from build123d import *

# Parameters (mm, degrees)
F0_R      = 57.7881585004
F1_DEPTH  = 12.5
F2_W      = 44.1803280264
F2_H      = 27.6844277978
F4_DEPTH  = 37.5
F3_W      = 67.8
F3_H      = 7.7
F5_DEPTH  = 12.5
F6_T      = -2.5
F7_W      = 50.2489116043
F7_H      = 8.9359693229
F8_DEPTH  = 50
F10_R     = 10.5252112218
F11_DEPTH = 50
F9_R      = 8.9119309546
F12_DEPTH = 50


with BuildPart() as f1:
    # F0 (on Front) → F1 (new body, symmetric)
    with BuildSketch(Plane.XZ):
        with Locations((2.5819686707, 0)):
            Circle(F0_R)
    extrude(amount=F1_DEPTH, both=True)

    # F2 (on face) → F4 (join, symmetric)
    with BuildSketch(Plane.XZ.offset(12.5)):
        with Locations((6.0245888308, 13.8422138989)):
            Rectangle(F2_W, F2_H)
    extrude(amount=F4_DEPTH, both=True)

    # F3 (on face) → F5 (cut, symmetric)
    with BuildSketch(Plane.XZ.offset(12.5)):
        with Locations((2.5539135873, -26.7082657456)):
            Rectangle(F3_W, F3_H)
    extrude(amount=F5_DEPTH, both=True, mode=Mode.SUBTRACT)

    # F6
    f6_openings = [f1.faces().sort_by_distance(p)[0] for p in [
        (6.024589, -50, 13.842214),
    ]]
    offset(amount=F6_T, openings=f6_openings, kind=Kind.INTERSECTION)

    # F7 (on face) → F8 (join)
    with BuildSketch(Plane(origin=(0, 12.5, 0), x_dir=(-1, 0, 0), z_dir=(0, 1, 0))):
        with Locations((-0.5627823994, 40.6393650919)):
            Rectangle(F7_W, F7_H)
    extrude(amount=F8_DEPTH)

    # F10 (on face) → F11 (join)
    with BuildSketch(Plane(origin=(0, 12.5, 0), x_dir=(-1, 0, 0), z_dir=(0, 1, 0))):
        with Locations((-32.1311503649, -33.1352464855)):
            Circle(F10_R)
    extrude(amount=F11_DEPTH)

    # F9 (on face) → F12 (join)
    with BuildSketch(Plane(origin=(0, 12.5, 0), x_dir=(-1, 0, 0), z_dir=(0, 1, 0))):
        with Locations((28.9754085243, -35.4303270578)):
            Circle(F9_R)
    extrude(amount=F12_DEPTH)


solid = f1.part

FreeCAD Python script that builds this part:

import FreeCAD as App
import Part
import Sketcher
from FreeCAD import Vector
Q = App.Units.Quantity


def faces_at(feature, points):
    """Names of the faces that lie closest to the given points."""
    faces = feature.Shape.Faces
    near = lambda p: min(range(len(faces)), key=lambda i: faces[i].distToShape(Part.Vertex(*p))[0])
    return sorted({f"Face{near(p) + 1}" for p in points})


def add_polygon(sketch, points):
    """Adds a closed chain of lines whose ends are joined by coincident constraints."""
    first, n = sketch.GeometryCount, len(points)
    for a, b in zip(points, points[1:] + points[:1]):
        sketch.addGeometry(Part.LineSegment(App.Vector(*a, 0), App.Vector(*b, 0)), False)
    for i in range(n):
        sketch.addConstraint(Sketcher.Constraint("Coincident", first + i, 2, first + (i + 1) % n, 1))

doc = App.newDocument("Part")
params = doc.addObject("Spreadsheet::Sheet", "Params")
for row, (alias, value) in enumerate([
    ("pad1_length", "25 mm"),
    ("pad2_length", "75 mm"),
    ("sketch3_width", "67.8 mm"),
    ("sketch3_height", "7.7 mm"),
    ("pocket1_length", "25 mm"),
    ("thickness_wall", "2.5 mm"),
    ("pad3_length", "50 mm"),
    ("pad4_length", "50 mm"),
    ("pad5_length", "50 mm"),
], start=1):
    params.set(f"A{row}", alias)
    params.set(f"B{row}", "=" + value)
    params.setAlias(f"B{row}", alias)

body = doc.addObject("PartDesign::Body", "Body")

sketch1 = body.newObject("Sketcher::SketchObject", "Sketch")
sketch1.AttachmentSupport = (doc.getObject("XZ_Plane"), [""])
sketch1.MapMode = "FlatFace"
sketch1.addGeometry(Part.Circle(Vector(3, 0, 0), Vector(0, 0, 1), 58), False)
sketch1.addConstraint(Sketcher.Constraint("PointOnObject", 0, 3, -1))
sketch1.addConstraint(Sketcher.Constraint("Diameter", 0, Q("115.576317 mm")))
sketch1.addConstraint(Sketcher.Constraint("DistanceX", -1, 1, 0, 3, Q("2.581969 mm")))
pad1 = body.newObject("PartDesign::Pad", "Pad")
pad1.Profile = sketch1
pad1.setExpression("Length", "Params.pad1_length")
pad1.Midplane = True

sketch2 = body.newObject("Sketcher::SketchObject", "Sketch001")
sketch2.AttachmentSupport = (doc.getObject("XZ_Plane"), [""])
sketch2.MapMode = "FlatFace"
sketch2.AttachmentOffset = App.Placement(Vector(0, 0, 12.5), App.Rotation())
add_polygon(sketch2, [(-16, 28), (-16, 0), (28, 0), (28, 28)])
sketch2.addConstraint(Sketcher.Constraint("Vertical", 0))
sketch2.addConstraint(Sketcher.Constraint("Horizontal", 1))
sketch2.addConstraint(Sketcher.Constraint("Vertical", 2))
sketch2.addConstraint(Sketcher.Constraint("Horizontal", 3))
sketch2.addConstraint(Sketcher.Constraint("PointOnObject", 0, 2, -1))
sketch2.addConstraint(Sketcher.Constraint("DistanceX", 1, 1, 1, 2, Q("44.180328 mm")))
sketch2.addConstraint(Sketcher.Constraint("DistanceY", 0, 2, 0, 1, Q("27.684428 mm")))
sketch2.addConstraint(Sketcher.Constraint("DistanceX", 0, 2, -1, 1, Q("16.065575 mm")))
pad2 = body.newObject("PartDesign::Pad", "Pad001")
pad2.Profile = sketch2
pad2.setExpression("Length", "Params.pad2_length")
pad2.Midplane = True

sketch3 = body.newObject("Sketcher::SketchObject", "Sketch002")
sketch3.AttachmentSupport = (doc.getObject("XZ_Plane"), [""])
sketch3.MapMode = "FlatFace"
sketch3.AttachmentOffset = App.Placement(Vector(0, 0, 12.5), App.Rotation())
add_polygon(sketch3, [(-31, -23), (-31, -31), (36, -31), (36, -23)])
sketch3.addConstraint(Sketcher.Constraint("Vertical", 0))
sketch3.addConstraint(Sketcher.Constraint("Horizontal", 1))
sketch3.addConstraint(Sketcher.Constraint("Vertical", 2))
sketch3.addConstraint(Sketcher.Constraint("Horizontal", 3))
sketch3.addConstraint(Sketcher.Constraint("DistanceX", 1, 1, 1, 2, Q("67.8 mm")))
sketch3.addConstraint(Sketcher.Constraint("DistanceY", 0, 2, 0, 1, Q("7.7 mm")))
sketch3.addConstraint(Sketcher.Constraint("DistanceX", 0, 2, -1, 1, Q("31.346086 mm")))
sketch3.addConstraint(Sketcher.Constraint("DistanceY", 0, 2, -1, 1, Q("30.558266 mm")))
sketch3.setExpression("Constraints[8]", "Params.sketch3_width")
sketch3.setExpression("Constraints[9]", "Params.sketch3_height")
pocket1 = body.newObject("PartDesign::Pocket", "Pocket")
pocket1.Profile = sketch3
pocket1.setExpression("Length", "Params.pocket1_length")
pocket1.Midplane = True
doc.recompute()

thickness = body.newObject("PartDesign::Thickness", "Thickness")
thickness.Base = (pocket1, faces_at(pocket1, [(6.025, -50, 13.842)]))
thickness.setExpression("Value", "Params.thickness_wall")
thickness.Reversed = True
thickness.Join = "Intersection"

sketch4 = body.newObject("Sketcher::SketchObject", "Sketch003")
sketch4.AttachmentSupport = (doc.getObject("XZ_Plane"), [""])
sketch4.MapMode = "FlatFace"
sketch4.AttachmentOffset = App.Placement(Vector(0, 0, -12.5), App.Rotation())
add_polygon(sketch4, [(26, 45), (26, 36), (-25, 36), (-25, 45)])
sketch4.addConstraint(Sketcher.Constraint("Vertical", 0))
sketch4.addConstraint(Sketcher.Constraint("Horizontal", 1))
sketch4.addConstraint(Sketcher.Constraint("Vertical", 2))
sketch4.addConstraint(Sketcher.Constraint("Horizontal", 3))
sketch4.addConstraint(Sketcher.Constraint("DistanceX", 1, 2, 1, 1, Q("50.248912 mm")))
sketch4.addConstraint(Sketcher.Constraint("DistanceY", 0, 2, 0, 1, Q("8.935969 mm")))
sketch4.addConstraint(Sketcher.Constraint("DistanceX", -1, 1, 0, 2, Q("25.687238 mm")))
sketch4.addConstraint(Sketcher.Constraint("DistanceY", -1, 1, 0, 2, Q("36.17138 mm")))
pad3 = body.newObject("PartDesign::Pad", "Pad002")
pad3.Profile = sketch4
pad3.setExpression("Length", "Params.pad3_length")
pad3.Reversed = True

sketch5 = body.newObject("Sketcher::SketchObject", "Sketch004")
sketch5.AttachmentSupport = (doc.getObject("XZ_Plane"), [""])
sketch5.MapMode = "FlatFace"
sketch5.AttachmentOffset = App.Placement(Vector(0, 0, -12.5), App.Rotation())
sketch5.addGeometry(Part.Circle(Vector(32, -33, 0), Vector(0, 0, 1), 11), False)
sketch5.addConstraint(Sketcher.Constraint("Diameter", 0, Q("21.050422 mm")))
sketch5.addConstraint(Sketcher.Constraint("DistanceX", -1, 1, 0, 3, Q("32.13115 mm")))
sketch5.addConstraint(Sketcher.Constraint("DistanceY", 0, 3, -1, 1, Q("33.135246 mm")))
pad4 = body.newObject("PartDesign::Pad", "Pad003")
pad4.Profile = sketch5
pad4.setExpression("Length", "Params.pad4_length")
pad4.Reversed = True

sketch6 = body.newObject("Sketcher::SketchObject", "Sketch005")
sketch6.AttachmentSupport = (doc.getObject("XZ_Plane"), [""])
sketch6.MapMode = "FlatFace"
sketch6.AttachmentOffset = App.Placement(Vector(0, 0, -12.5), App.Rotation())
sketch6.addGeometry(Part.Circle(Vector(-29, -35, 0), Vector(0, 0, 1), 9), False)
sketch6.addConstraint(Sketcher.Constraint("Diameter", 0, Q("17.823862 mm")))
sketch6.addConstraint(Sketcher.Constraint("DistanceX", 0, 3, -1, 1, Q("28.975409 mm")))
sketch6.addConstraint(Sketcher.Constraint("DistanceY", 0, 3, -1, 1, Q("35.430327 mm")))
pad5 = body.newObject("PartDesign::Pad", "Pad004")
pad5.Profile = sketch6
pad5.setExpression("Length", "Params.pad5_length")
pad5.Reversed = True

doc.recompute()
